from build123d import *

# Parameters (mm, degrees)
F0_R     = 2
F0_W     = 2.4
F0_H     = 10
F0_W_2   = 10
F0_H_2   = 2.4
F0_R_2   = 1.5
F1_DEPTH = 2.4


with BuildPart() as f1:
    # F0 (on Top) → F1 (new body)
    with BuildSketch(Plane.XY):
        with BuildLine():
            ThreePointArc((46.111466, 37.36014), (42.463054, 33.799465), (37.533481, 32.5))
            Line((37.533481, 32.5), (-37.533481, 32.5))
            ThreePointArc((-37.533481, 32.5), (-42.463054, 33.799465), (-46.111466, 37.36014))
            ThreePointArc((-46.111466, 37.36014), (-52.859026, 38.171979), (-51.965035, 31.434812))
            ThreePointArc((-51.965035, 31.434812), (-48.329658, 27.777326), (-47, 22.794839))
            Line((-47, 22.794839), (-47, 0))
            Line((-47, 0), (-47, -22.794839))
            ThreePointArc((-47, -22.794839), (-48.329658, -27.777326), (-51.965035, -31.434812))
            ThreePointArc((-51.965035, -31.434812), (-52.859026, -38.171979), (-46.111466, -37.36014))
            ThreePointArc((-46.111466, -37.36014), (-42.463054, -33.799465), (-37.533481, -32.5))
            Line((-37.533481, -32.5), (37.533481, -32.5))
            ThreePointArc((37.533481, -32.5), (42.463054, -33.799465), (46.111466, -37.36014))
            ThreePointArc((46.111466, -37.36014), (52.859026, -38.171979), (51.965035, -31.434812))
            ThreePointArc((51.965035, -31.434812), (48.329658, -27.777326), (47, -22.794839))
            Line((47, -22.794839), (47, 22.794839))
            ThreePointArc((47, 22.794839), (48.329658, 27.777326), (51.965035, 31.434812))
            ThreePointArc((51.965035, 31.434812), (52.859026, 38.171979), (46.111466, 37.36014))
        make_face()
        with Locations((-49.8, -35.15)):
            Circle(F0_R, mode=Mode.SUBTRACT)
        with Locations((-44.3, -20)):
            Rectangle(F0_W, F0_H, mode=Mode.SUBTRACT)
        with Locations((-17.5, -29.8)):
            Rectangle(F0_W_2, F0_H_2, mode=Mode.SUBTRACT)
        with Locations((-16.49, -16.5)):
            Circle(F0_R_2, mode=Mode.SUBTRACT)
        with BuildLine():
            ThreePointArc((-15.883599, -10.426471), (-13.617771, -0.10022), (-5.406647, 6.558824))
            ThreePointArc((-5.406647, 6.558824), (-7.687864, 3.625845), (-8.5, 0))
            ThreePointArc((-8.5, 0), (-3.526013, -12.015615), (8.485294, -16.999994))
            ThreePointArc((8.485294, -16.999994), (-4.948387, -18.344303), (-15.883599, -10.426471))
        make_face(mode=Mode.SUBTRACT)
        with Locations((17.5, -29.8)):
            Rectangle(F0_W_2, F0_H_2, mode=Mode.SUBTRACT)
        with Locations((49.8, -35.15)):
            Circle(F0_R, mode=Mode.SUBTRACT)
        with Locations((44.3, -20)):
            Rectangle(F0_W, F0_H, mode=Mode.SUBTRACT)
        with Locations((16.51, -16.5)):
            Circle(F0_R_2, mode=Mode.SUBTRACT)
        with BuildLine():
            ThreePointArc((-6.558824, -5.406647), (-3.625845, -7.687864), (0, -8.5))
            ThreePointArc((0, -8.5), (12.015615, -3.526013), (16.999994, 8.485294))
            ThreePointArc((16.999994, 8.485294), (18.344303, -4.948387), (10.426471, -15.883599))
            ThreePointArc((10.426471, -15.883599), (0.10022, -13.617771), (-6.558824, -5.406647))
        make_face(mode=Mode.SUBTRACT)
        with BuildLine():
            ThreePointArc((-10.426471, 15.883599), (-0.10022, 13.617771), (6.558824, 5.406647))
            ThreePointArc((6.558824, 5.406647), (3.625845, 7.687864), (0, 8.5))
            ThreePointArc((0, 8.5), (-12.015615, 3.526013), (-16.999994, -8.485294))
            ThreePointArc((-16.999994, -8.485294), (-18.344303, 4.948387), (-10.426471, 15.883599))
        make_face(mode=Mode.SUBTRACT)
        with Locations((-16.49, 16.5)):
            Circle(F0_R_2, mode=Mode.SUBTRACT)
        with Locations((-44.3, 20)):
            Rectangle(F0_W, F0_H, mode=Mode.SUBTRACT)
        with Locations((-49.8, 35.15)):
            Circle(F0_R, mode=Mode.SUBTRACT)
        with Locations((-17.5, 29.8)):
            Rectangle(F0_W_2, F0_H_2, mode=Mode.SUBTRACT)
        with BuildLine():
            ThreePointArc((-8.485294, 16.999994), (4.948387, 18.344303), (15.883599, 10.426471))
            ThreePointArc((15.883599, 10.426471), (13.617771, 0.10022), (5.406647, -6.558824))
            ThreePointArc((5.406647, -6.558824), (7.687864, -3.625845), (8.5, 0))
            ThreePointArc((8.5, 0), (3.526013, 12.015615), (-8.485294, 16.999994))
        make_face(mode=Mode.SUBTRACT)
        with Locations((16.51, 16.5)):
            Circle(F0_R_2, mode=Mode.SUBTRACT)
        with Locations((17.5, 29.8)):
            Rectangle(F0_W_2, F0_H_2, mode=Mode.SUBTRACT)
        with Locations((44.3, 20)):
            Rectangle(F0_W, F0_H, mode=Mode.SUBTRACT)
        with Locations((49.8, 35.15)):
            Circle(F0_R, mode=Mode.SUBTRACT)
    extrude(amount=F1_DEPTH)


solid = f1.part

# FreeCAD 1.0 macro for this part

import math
import FreeCAD as App
import Part
import Sketcher


def add_polygon(sketch, points):
    """Adds a closed chain of lines whose ends are joined by coincident constraints."""
    first, n = sketch.GeometryCount, len(points)
    for a, b in zip(points, points[1:] + points[:1]):
        sketch.addGeometry(Part.LineSegment(App.Vector(*a, 0), App.Vector(*b, 0)), False)
    for i in range(n):
        sketch.addConstraint(Sketcher.Constraint("Coincident", first + i, 2, first + (i + 1) % n, 1))

doc = App.newDocument("Part")
params = doc.addObject("Spreadsheet::Sheet", "Params")
for row, (alias, value) in enumerate([
    ("sketch1_diameter", "4 mm"),
    ("sketch1_diameter2", "3 mm"),
    ("sketch1_radius", "9.999999 mm"),
    ("sketch1_radius2", "17.000001 mm"),
    ("sketch1_radius3", "4.3 mm"),
    ("pad1_length", "2.4 mm"),
], start=1):
    params.set(f"A{row}", alias)
    params.set(f"B{row}", "=" + value)
    params.setAlias(f"B{row}", alias)

body = doc.addObject("PartDesign::Body", "Body")

sketch1 = body.newObject("Sketcher::SketchObject", "Sketch")
sketch1.AttachmentSupport = (doc.getObject("XY_Plane"), [""])
sketch1.MapMode = "FlatFace"
sketch1.addGeometry(Part.ArcOfCircle(Part.Circle(App.Vector(37.5, 42.5, 0), App.Vector(0, 0, 1), 10), math.radians(-90), math.radians(-31)), False)
sketch1.addGeometry(Part.LineSegment(App.Vector(37.5, 32.5, 0), App.Vector(-37.5, 32.5, 0)), False)
sketch1.addGeometry(Part.ArcOfCircle(Part.Circle(App.Vector(-37.5, 42.5, 0), App.Vector(0, 0, 1), 10), math.radians(-149), math.radians(-90)), False)
sketch1.addGeometry(Part.ArcOfCircle(Part.Circle(App.Vector(-49.8, 35.1, 0), App.Vector(0, 0, 1), 4.3), math.radians(31), math.radians(240)), False)
sketch1.addGeometry(Part.ArcOfCircle(Part.Circle(App.Vector(-57, 22.8, 0), App.Vector(0, 0, 1), 10), math.radians(0), math.radians(60)), False)
sketch1.addGeometry(Part.LineSegment(App.Vector(-47, 22.8, 0), App.Vector(-47, -22.8, 0)), False)
sketch1.addGeometry(Part.ArcOfCircle(Part.Circle(App.Vector(-57, -22.8, 0), App.Vector(0, 0, 1), 10), math.radians(-60), math.radians(0)), False)
sketch1.addGeometry(Part.ArcOfCircle(Part.Circle(App.Vector(-49.8, -35.1, 0), App.Vector(0, 0, 1), 4.3), math.radians(120), math.radians(329)), False)
sketch1.addGeometry(Part.ArcOfCircle(Part.Circle(App.Vector(-37.5, -42.5, 0), App.Vector(0, 0, 1), 10), math.radians(90), math.radians(149)), False)
sketch1.addGeometry(Part.LineSegment(App.Vector(-37.5, -32.5, 0), App.Vector(37.5, -32.5, 0)), False)
sketch1.addGeometry(Part.ArcOfCircle(Part.Circle(App.Vector(37.5, -42.5, 0), App.Vector(0, 0, 1), 10), math.radians(31), math.radians(90)), False)
sketch1.addGeometry(Part.ArcOfCircle(Part.Circle(App.Vector(49.8, -35.1, 0), App.Vector(0, 0, 1), 4.3), math.radians(-149), math.radians(60)), False)
sketch1.addGeometry(Part.ArcOfCircle(Part.Circle(App.Vector(57, -22.8, 0), App.Vector(0, 0, 1), 10), math.radians(180), math.radians(240)), False)
sketch1.addGeometry(Part.LineSegment(App.Vector(47, -22.8, 0), App.Vector(47, 22.8, 0)), False)
sketch1.addGeometry(Part.ArcOfCircle(Part.Circle(App.Vector(57, 22.8, 0), App.Vector(0, 0, 1), 10), math.radians(120), math.radians(180)), False)
sketch1.addGeometry(Part.ArcOfCircle(Part.Circle(App.Vector(49.8, 35.1, 0), App.Vector(0, 0, 1), 4.3), math.radians(-60), math.radians(149)), False)
sketch1.addGeometry(Part.Circle(App.Vector(-49.8, -35.1, 0), App.Vector(0, 0, 1), 2), False)
add_polygon(sketch1, [(-43.1, -25), (-45.5, -25), (-45.5, -15), (-43.1, -15)])
add_polygon(sketch1, [(-12.5, -31), (-22.5, -31), (-22.5, -28.6), (-12.5, -28.6)])
sketch1.addGeometry(Part.Circle(App.Vector(-16.5, -16.5, 0), App.Vector(0, 0, 1), 1.5), False)
sketch1.addGeometry(Part.ArcOfCircle(Part.Circle(App.Vector(0, 0, 0), App.Vector(0, 0, 1), 19), math.radians(-147), math.radians(-63)), False)
sketch1.addGeometry(Part.ArcOfCircle(Part.Circle(App.Vector(0, -8.5, 0), App.Vector(0, 0, 1), 16), math.radians(110), math.radians(187)), False)
sketch1.addGeometry(Part.ArcOfCircle(Part.Circle(App.Vector(0, 0, 0), App.Vector(0, 0, 1), 8.5), math.radians(129), math.radians(180)), False)
sketch1.addGeometry(Part.ArcOfCircle(Part.Circle(App.Vector(8.5, 0, 0), App.Vector(0, 0, 1), 17), math.radians(-180), math.radians(-90)), False)
add_polygon(sketch1, [(22.5, -31), (12.5, -31), (12.5, -28.6), (22.5, -28.6)])
sketch1.addGeometry(Part.Circle(App.Vector(49.8, -35.1, 0), App.Vector(0, 0, 1), 2), False)
add_polygon(sketch1, [(45.5, -25), (43.1, -25), (43.1, -15), (45.5, -15)])
sketch1.addGeometry(Part.Circle(App.Vector(16.5, -16.5, 0), App.Vector(0, 0, 1), 1.5), False)
sketch1.addGeometry(Part.ArcOfCircle(Part.Circle(App.Vector(8.5, 0, 0), App.Vector(0, 0, 1), 16), math.radians(-160), math.radians(-83)), False)
sketch1.addGeometry(Part.ArcOfCircle(Part.Circle(App.Vector(0, 0, 0), App.Vector(0, 0, 1), 8.5), math.radians(-141), math.radians(-90)), False)
sketch1.addGeometry(Part.ArcOfCircle(Part.Circle(App.Vector(0, 8.5, 0), App.Vector(0, 0, 1), 17), math.radians(-90), math.radians(0)), False)
sketch1.addGeometry(Part.ArcOfCircle(Part.Circle(App.Vector(0, 0, 0), App.Vector(0, 0, 1), 19), math.radians(-57), math.radians(27)), False)
sketch1.addGeometry(Part.ArcOfCircle(Part.Circle(App.Vector(0, 0, 0), App.Vector(0, 0, 1), 19), math.radians(123), math.radians(207)), False)
sketch1.addGeometry(Part.ArcOfCircle(Part.Circle(App.Vector(-8.5, 0, 0), App.Vector(0, 0, 1), 16), math.radians(20), math.radians(97)), False)
sketch1.addGeometry(Part.ArcOfCircle(Part.Circle(App.Vector(0, 0, 0), App.Vector(0, 0, 1), 8.5), math.radians(39), math.radians(90)), False)
sketch1.addGeometry(Part.ArcOfCircle(Part.Circle(App.Vector(0, -8.5, 0), App.Vector(0, 0, 1), 17), math.radians(90), math.radians(180)), False)
sketch1.addGeometry(Part.Circle(App.Vector(-16.5, 16.5, 0), App.Vector(0, 0, 1), 1.5), False)
add_polygon(sketch1, [(-43.1, 15), (-45.5, 15), (-45.5, 25), (-43.1, 25)])
sketch1.addGeometry(Part.Circle(App.Vector(-49.8, 35.1, 0), App.Vector(0, 0, 1), 2), False)
add_polygon(sketch1, [(-12.5, 28.6), (-22.5, 28.6), (-22.5, 31), (-12.5, 31)])
sketch1.addGeometry(Part.ArcOfCircle(Part.Circle(App.Vector(-8.5, 0, 0), App.Vector(0, 0, 1), 17), math.radians(0), math.radians(90)), False)
sketch1.addGeometry(Part.ArcOfCircle(Part.Circle(App.Vector(0, 0, 0), App.Vector(0, 0, 1), 19), math.radians(33), math.radians(117)), False)
sketch1.addGeometry(Part.ArcOfCircle(Part.Circle(App.Vector(0, 8.5, 0), App.Vector(0, 0, 1), 16), math.radians(-70), math.radians(7)), False)
sketch1.addGeometry(Part.ArcOfCircle(Part.Circle(App.Vector(0, 0, 0), App.Vector(0, 0, 1), 8.5), math.radians(-51), math.radians(0)), False)
sketch1.addGeometry(Part.Circle(App.Vector(16.5, 16.5, 0), App.Vector(0, 0, 1), 1.5), False)
add_polygon(sketch1, [(22.5, 28.6), (12.5, 28.6), (12.5, 31), (22.5, 31)])
add_polygon(sketch1, [(45.5, 15), (43.1, 15), (43.1, 25), (45.5, 25)])
sketch1.addGeometry(Part.Circle(App.Vector(49.8, 35.1, 0), App.Vector(0, 0, 1), 2), False)
sketch1.addConstraint(Sketcher.Constraint("Tangent", 0, 1, 1, 1))
sketch1.addConstraint(Sketcher.Constraint("Tangent", 1, 2, 2, 2))
sketch1.addConstraint(Sketcher.Constraint("Tangent", 2, 1, 3, 1))
sketch1.addConstraint(Sketcher.Constraint("Tangent", 3, 2, 4, 2))
sketch1.addConstraint(Sketcher.Constraint("Tangent", 4, 1, 5, 1))
sketch1.addConstraint(Sketcher.Constraint("Tangent", 5, 2, 6, 2))
sketch1.addConstraint(Sketcher.Constraint("Tangent", 6, 1, 7, 1))
sketch1.addConstraint(Sketcher.Constraint("Tangent", 7, 2, 8, 2))
sketch1.addConstraint(Sketcher.Constraint("Tangent", 8, 1, 9, 1))
sketch1.addConstraint(Sketcher.Constraint("Tangent", 9, 2, 10, 2))
sketch1.addConstraint(Sketcher.Constraint("Tangent", 10, 1, 11, 1))
sketch1.addConstraint(Sketcher.Constraint("Tangent", 11, 2, 12, 2))
sketch1.addConstraint(Sketcher.Constraint("Tangent", 12, 1, 13, 1))
sketch1.addConstraint(Sketcher.Constraint("Tangent", 13, 2, 14, 2))
sketch1.addConstraint(Sketcher.Constraint("Tangent", 14, 1, 15, 1))
sketch1.addConstraint(Sketcher.Constraint("Tangent", 15, 2, 0, 2))
sketch1.addConstraint(Sketcher.Constraint("Coincident", 26, 1, 27, 2))
sketch1.addConstraint(Sketcher.Constraint("Coincident", 27, 1, 28, 1))
sketch1.addConstraint(Sketcher.Constraint("Tangent", 28, 2, 29, 1))
sketch1.addConstraint(Sketcher.Constraint("Coincident", 29, 2, 26, 2))
sketch1.addConstraint(Sketcher.Constraint("Coincident", 40, 1, 41, 1))
sketch1.addConstraint(Sketcher.Constraint("Tangent", 41, 2, 42, 1))
sketch1.addConstraint(Sketcher.Constraint("Coincident", 42, 2, 43, 2))
sketch1.addConstraint(Sketcher.Constraint("Coincident", 43, 1, 40, 2))
sketch1.addConstraint(Sketcher.Constraint("Coincident", 44, 1, 45, 2))
sketch1.addConstraint(Sketcher.Constraint("Coincident", 45, 1, 46, 1))
sketch1.addConstraint(Sketcher.Constraint("Tangent", 46, 2, 47, 1))
sketch1.addConstraint(Sketcher.Constraint("Coincident", 47, 2, 44, 2))
sketch1.addConstraint(Sketcher.Constraint("Coincident", 58, 2, 59, 2))
sketch1.addConstraint(Sketcher.Constraint("Coincident", 59, 1, 60, 2))
sketch1.addConstraint(Sketcher.Constraint("Coincident", 60, 1, 61, 1))
sketch1.addConstraint(Sketcher.Constraint("Tangent", 61, 2, 58, 1))
sketch1.addConstraint(Sketcher.Constraint("Horizontal", 1))
sketch1.addConstraint(Sketcher.Constraint("Vertical", 5))
sketch1.addConstraint(Sketcher.Constraint("Horizontal", 9))
sketch1.addConstraint(Sketcher.Constraint("Vertical", 13))
sketch1.addConstraint(Sketcher.Constraint("Horizontal", 17))
sketch1.addConstraint(Sketcher.Constraint("Vertical", 18))
sketch1.addConstraint(Sketcher.Constraint("Horizontal", 19))
sketch1.addConstraint(Sketcher.Constraint("Vertical", 20))
sketch1.addConstraint(Sketcher.Constraint("Horizontal", 21))
sketch1.addConstraint(Sketcher.Constraint("Vertical", 22))
sketch1.addConstraint(Sketcher.Constraint("Horizontal", 23))
sketch1.addConstraint(Sketcher.Constraint("Vertical", 24))
sketch1.addConstraint(Sketcher.Constraint("Horizontal", 30))
sketch1.addConstraint(Sketcher.Constraint("Vertical", 31))
sketch1.addConstraint(Sketcher.Constraint("Horizontal", 32))
sketch1.addConstraint(Sketcher.Constraint("Vertical", 33))
sketch1.addConstraint(Sketcher.Constraint("Horizontal", 35))
sketch1.addConstraint(Sketcher.Constraint("Vertical", 36))
sketch1.addConstraint(Sketcher.Constraint("Horizontal", 37))
sketch1.addConstraint(Sketcher.Constraint("Vertical", 38))
sketch1.addConstraint(Sketcher.Constraint("Horizontal", 49))
sketch1.addConstraint(Sketcher.Constraint("Vertical", 50))
sketch1.addConstraint(Sketcher.Constraint("Horizontal", 51))
sketch1.addConstraint(Sketcher.Constraint("Vertical", 52))
sketch1.addConstraint(Sketcher.Constraint("Horizontal", 54))
sketch1.addConstraint(Sketcher.Constraint("Vertical", 55))
sketch1.addConstraint(Sketcher.Constraint("Horizontal", 56))
sketch1.addConstraint(Sketcher.Constraint("Vertical", 57))
sketch1.addConstraint(Sketcher.Constraint("Horizontal", 63))
sketch1.addConstraint(Sketcher.Constraint("Vertical", 64))
sketch1.addConstraint(Sketcher.Constraint("Horizontal", 65))
sketch1.addConstraint(Sketcher.Constraint("Vertical", 66))
sketch1.addConstraint(Sketcher.Constraint("Horizontal", 67))
sketch1.addConstraint(Sketcher.Constraint("Vertical", 68))
sketch1.addConstraint(Sketcher.Constraint("Horizontal", 69))
sketch1.addConstraint(Sketcher.Constraint("Vertical", 70))
sketch1.addConstraint(Sketcher.Constraint("Coincident", 26, 3, -1, 1))
sketch1.addConstraint(Sketcher.Constraint("Coincident", 28, 3, -1, 1))
sketch1.addConstraint(Sketcher.Constraint("Coincident", 41, 3, -1, 1))
sketch1.addConstraint(Sketcher.Constraint("Coincident", 43, 3, -1, 1))
sketch1.addConstraint(Sketcher.Constraint("Coincident", 44, 3, -1, 1))
sketch1.addConstraint(Sketcher.Constraint("Coincident", 46, 3, -1, 1))
sketch1.addConstraint(Sketcher.Constraint("Coincident", 59, 3, -1, 1))
sketch1.addConstraint(Sketcher.Constraint("Coincident", 61, 3, -1, 1))
sketch1.addConstraint(Sketcher.Constraint("Coincident", 16, 3, 7, 3))
sketch1.addConstraint(Sketcher.Constraint("Coincident", 34, 3, 11, 3))
sketch1.addConstraint(Sketcher.Constraint("Coincident", 40, 3, 29, 3))
sketch1.addConstraint(Sketcher.Constraint("Coincident", 47, 3, 27, 3))
sketch1.addConstraint(Sketcher.Constraint("Coincident", 53, 3, 3, 3))
sketch1.addConstraint(Sketcher.Constraint("Coincident", 58, 3, 45, 3))
sketch1.addConstraint(Sketcher.Constraint("Coincident", 60, 3, 42, 3))
sketch1.addConstraint(Sketcher.Constraint("Coincident", 71, 3, 15, 3))
sketch1.addConstraint(Sketcher.Constraint("Coincident", 28, 2, 45, 3))
sketch1.addConstraint(Sketcher.Constraint("Coincident", 41, 2, 27, 3))
sketch1.addConstraint(Sketcher.Constraint("Equal", 0, 2))
sketch1.addConstraint(Sketcher.Constraint("Equal", 2, 4))
sketch1.addConstraint(Sketcher.Constraint("Equal", 4, 6))
sketch1.addConstraint(Sketcher.Constraint("Equal", 3, 7))
sketch1.addConstraint(Sketcher.Constraint("Equal", 6, 8))
sketch1.addConstraint(Sketcher.Constraint("Equal", 8, 10))
sketch1.addConstraint(Sketcher.Constraint("Equal", 7, 11))
sketch1.addConstraint(Sketcher.Constraint("Equal", 10, 12))
sketch1.addConstraint(Sketcher.Constraint("Equal", 12, 14))
sketch1.addConstraint(Sketcher.Constraint("Equal", 11, 15))
sketch1.addConstraint(Sketcher.Constraint("Equal", 16, 34))
sketch1.addConstraint(Sketcher.Constraint("Equal", 25, 39))
sketch1.addConstraint(Sketcher.Constraint("Equal", 27, 40))
sketch1.addConstraint(Sketcher.Constraint("Equal", 28, 41))
sketch1.addConstraint(Sketcher.Constraint("Equal", 29, 42))
sketch1.addConstraint(Sketcher.Constraint("Equal", 26, 43))
sketch1.addConstraint(Sketcher.Constraint("Equal", 43, 44))
sketch1.addConstraint(Sketcher.Constraint("Equal", 40, 45))
sketch1.addConstraint(Sketcher.Constraint("Equal", 41, 46))
sketch1.addConstraint(Sketcher.Constraint("Equal", 42, 47))
sketch1.addConstraint(Sketcher.Constraint("Equal", 39, 48))
sketch1.addConstraint(Sketcher.Constraint("Equal", 34, 53))
sketch1.addConstraint(Sketcher.Constraint("Equal", 47, 58))
sketch1.addConstraint(Sketcher.Constraint("Equal", 44, 59))
sketch1.addConstraint(Sketcher.Constraint("Equal", 45, 60))
sketch1.addConstraint(Sketcher.Constraint("Equal", 48, 62))
sketch1.addConstraint(Sketcher.Constraint("Equal", 53, 71))
sketch1.addConstraint(Sketcher.Constraint("Symmetric", 0, 3, 8, 3, -1, 1))
sketch1.addConstraint(Sketcher.Constraint("Symmetric", 3, 3, 11, 3, -1, 1))
sketch1.addConstraint(Sketcher.Constraint("Symmetric", 6, 3, 14, 3, -1, 1))
sketch1.addConstraint(Sketcher.Constraint("Symmetric", 37, 2, 49, 2, -1, 1))
sketch1.addConstraint(Sketcher.Constraint("Symmetric", 35, 2, 51, 2, -1, 1))
sketch1.addConstraint(Sketcher.Constraint("Symmetric", 32, 2, 54, 2, -1, 1))
sketch1.addConstraint(Sketcher.Constraint("Symmetric", 30, 2, 56, 2, -1, 1))
sketch1.addConstraint(Sketcher.Constraint("Symmetric", 23, 2, 63, 2, -1, 1))
sketch1.addConstraint(Sketcher.Constraint("Symmetric", 21, 2, 65, 2, -1, 1))
sketch1.addConstraint(Sketcher.Constraint("Symmetric", 19, 2, 67, 2, -1, 1))
sketch1.addConstraint(Sketcher.Constraint("Symmetric", 17, 2, 69, 2, -1, 1))
sketch1.addConstraint(Sketcher.Constraint("Symmetric", 7, 3, 11, 3, -2))
sketch1.addConstraint(Sketcher.Constraint("Symmetric", 24, 2, 30, 2, -2))
sketch1.addConstraint(Sketcher.Constraint("Symmetric", 22, 2, 32, 2, -2))
sketch1.addConstraint(Sketcher.Constraint("Symmetric", 20, 2, 35, 2, -2))
sketch1.addConstraint(Sketcher.Constraint("Symmetric", 18, 2, 37, 2, -2))
sketch1.addConstraint(Sketcher.Constraint("Symmetric", 25, 3, 48, 3, -1))
sketch1.addConstraint(Sketcher.Constraint("Symmetric", 39, 3, 62, 3, -1))
sketch1.addConstraint(Sketcher.Constraint("PointOnObject", 29, 3, -1))
sketch1.addConstraint(Sketcher.Constraint("PointOnObject", 42, 3, -2))
sketch1.addConstraint(Sketcher.Constraint("Horizontal", 25, 3, 39, 3))
sketch1.addConstraint(Sketcher.Constraint("Equal", 65, 18))
sketch1.addConstraint(Sketcher.Constraint("Equal", 69, 22))
sketch1.addConstraint(Sketcher.Constraint("Diameter", 16, 4.0))
sketch1.addConstraint(Sketcher.Constraint("Diameter", 25, 3.0))
sketch1.addConstraint(Sketcher.Constraint("Radius", 4, 9.999999))
sketch1.addConstraint(Sketcher.Constraint("Radius", 29, 17.000001))
sketch1.addConstraint(Sketcher.Constraint("Radius", 3, 4.3))
sketch1.addConstraint(Sketcher.Constraint("DistanceX", 21, 2, 21, 1, 10.0))
sketch1.addConstraint(Sketcher.Constraint("DistanceX", 17, 2, 17, 1, 2.4))
sketch1.addConstraint(Sketcher.Constraint("DistanceX", 4, 3, -1, 1, 56.999999))
sketch1.addConstraint(Sketcher.Constraint("DistanceY", 17, 2, -1, 1, 25.0))
sketch1.addConstraint(Sketcher.Constraint("DistanceY", 21, 2, -1, 1, 31.0))
sketch1.addConstraint(Sketcher.Constraint("DistanceX", 3, 3, -1, 1, 49.8))
sketch1.addConstraint(Sketcher.Constraint("DistanceY", 25, 3, -1, 1, 16.5))
sketch1.addConstraint(Sketcher.Constraint("DistanceY", -1, 1, 0, 1, 32.5))
sketch1.addConstraint(Sketcher.Constraint("DistanceX", 17, 2, -1, 1, 45.5))
sketch1.addConstraint(Sketcher.Constraint("DistanceX", 21, 2, -1, 1, 22.5))
sketch1.addConstraint(Sketcher.Constraint("DistanceY", -1, 1, 3, 3, 35.15))
sketch1.addConstraint(Sketcher.Constraint("DistanceX", 25, 3, -1, 1, 16.49))
sketch1.addConstraint(Sketcher.Constraint("DistanceX", -1, 1, 39, 3, 16.51))
sketch1.addConstraint(Sketcher.Constraint("Radius", 26, 19.000002))
sketch1.addConstraint(Sketcher.Constraint("Radius", 27, 16.000002))
sketch1.setExpression("Constraints[168]", "Params.sketch1_diameter")
sketch1.setExpression("Constraints[169]", "Params.sketch1_diameter2")
sketch1.setExpression("Constraints[170]", "Params.sketch1_radius")
sketch1.setExpression("Constraints[171]", "Params.sketch1_radius2")
sketch1.setExpression("Constraints[172]", "Params.sketch1_radius3")
pad1 = body.newObject("PartDesign::Pad", "Pad")
pad1.Profile = sketch1
pad1.setExpression("Length", "Params.pad1_length")

doc.recompute()
